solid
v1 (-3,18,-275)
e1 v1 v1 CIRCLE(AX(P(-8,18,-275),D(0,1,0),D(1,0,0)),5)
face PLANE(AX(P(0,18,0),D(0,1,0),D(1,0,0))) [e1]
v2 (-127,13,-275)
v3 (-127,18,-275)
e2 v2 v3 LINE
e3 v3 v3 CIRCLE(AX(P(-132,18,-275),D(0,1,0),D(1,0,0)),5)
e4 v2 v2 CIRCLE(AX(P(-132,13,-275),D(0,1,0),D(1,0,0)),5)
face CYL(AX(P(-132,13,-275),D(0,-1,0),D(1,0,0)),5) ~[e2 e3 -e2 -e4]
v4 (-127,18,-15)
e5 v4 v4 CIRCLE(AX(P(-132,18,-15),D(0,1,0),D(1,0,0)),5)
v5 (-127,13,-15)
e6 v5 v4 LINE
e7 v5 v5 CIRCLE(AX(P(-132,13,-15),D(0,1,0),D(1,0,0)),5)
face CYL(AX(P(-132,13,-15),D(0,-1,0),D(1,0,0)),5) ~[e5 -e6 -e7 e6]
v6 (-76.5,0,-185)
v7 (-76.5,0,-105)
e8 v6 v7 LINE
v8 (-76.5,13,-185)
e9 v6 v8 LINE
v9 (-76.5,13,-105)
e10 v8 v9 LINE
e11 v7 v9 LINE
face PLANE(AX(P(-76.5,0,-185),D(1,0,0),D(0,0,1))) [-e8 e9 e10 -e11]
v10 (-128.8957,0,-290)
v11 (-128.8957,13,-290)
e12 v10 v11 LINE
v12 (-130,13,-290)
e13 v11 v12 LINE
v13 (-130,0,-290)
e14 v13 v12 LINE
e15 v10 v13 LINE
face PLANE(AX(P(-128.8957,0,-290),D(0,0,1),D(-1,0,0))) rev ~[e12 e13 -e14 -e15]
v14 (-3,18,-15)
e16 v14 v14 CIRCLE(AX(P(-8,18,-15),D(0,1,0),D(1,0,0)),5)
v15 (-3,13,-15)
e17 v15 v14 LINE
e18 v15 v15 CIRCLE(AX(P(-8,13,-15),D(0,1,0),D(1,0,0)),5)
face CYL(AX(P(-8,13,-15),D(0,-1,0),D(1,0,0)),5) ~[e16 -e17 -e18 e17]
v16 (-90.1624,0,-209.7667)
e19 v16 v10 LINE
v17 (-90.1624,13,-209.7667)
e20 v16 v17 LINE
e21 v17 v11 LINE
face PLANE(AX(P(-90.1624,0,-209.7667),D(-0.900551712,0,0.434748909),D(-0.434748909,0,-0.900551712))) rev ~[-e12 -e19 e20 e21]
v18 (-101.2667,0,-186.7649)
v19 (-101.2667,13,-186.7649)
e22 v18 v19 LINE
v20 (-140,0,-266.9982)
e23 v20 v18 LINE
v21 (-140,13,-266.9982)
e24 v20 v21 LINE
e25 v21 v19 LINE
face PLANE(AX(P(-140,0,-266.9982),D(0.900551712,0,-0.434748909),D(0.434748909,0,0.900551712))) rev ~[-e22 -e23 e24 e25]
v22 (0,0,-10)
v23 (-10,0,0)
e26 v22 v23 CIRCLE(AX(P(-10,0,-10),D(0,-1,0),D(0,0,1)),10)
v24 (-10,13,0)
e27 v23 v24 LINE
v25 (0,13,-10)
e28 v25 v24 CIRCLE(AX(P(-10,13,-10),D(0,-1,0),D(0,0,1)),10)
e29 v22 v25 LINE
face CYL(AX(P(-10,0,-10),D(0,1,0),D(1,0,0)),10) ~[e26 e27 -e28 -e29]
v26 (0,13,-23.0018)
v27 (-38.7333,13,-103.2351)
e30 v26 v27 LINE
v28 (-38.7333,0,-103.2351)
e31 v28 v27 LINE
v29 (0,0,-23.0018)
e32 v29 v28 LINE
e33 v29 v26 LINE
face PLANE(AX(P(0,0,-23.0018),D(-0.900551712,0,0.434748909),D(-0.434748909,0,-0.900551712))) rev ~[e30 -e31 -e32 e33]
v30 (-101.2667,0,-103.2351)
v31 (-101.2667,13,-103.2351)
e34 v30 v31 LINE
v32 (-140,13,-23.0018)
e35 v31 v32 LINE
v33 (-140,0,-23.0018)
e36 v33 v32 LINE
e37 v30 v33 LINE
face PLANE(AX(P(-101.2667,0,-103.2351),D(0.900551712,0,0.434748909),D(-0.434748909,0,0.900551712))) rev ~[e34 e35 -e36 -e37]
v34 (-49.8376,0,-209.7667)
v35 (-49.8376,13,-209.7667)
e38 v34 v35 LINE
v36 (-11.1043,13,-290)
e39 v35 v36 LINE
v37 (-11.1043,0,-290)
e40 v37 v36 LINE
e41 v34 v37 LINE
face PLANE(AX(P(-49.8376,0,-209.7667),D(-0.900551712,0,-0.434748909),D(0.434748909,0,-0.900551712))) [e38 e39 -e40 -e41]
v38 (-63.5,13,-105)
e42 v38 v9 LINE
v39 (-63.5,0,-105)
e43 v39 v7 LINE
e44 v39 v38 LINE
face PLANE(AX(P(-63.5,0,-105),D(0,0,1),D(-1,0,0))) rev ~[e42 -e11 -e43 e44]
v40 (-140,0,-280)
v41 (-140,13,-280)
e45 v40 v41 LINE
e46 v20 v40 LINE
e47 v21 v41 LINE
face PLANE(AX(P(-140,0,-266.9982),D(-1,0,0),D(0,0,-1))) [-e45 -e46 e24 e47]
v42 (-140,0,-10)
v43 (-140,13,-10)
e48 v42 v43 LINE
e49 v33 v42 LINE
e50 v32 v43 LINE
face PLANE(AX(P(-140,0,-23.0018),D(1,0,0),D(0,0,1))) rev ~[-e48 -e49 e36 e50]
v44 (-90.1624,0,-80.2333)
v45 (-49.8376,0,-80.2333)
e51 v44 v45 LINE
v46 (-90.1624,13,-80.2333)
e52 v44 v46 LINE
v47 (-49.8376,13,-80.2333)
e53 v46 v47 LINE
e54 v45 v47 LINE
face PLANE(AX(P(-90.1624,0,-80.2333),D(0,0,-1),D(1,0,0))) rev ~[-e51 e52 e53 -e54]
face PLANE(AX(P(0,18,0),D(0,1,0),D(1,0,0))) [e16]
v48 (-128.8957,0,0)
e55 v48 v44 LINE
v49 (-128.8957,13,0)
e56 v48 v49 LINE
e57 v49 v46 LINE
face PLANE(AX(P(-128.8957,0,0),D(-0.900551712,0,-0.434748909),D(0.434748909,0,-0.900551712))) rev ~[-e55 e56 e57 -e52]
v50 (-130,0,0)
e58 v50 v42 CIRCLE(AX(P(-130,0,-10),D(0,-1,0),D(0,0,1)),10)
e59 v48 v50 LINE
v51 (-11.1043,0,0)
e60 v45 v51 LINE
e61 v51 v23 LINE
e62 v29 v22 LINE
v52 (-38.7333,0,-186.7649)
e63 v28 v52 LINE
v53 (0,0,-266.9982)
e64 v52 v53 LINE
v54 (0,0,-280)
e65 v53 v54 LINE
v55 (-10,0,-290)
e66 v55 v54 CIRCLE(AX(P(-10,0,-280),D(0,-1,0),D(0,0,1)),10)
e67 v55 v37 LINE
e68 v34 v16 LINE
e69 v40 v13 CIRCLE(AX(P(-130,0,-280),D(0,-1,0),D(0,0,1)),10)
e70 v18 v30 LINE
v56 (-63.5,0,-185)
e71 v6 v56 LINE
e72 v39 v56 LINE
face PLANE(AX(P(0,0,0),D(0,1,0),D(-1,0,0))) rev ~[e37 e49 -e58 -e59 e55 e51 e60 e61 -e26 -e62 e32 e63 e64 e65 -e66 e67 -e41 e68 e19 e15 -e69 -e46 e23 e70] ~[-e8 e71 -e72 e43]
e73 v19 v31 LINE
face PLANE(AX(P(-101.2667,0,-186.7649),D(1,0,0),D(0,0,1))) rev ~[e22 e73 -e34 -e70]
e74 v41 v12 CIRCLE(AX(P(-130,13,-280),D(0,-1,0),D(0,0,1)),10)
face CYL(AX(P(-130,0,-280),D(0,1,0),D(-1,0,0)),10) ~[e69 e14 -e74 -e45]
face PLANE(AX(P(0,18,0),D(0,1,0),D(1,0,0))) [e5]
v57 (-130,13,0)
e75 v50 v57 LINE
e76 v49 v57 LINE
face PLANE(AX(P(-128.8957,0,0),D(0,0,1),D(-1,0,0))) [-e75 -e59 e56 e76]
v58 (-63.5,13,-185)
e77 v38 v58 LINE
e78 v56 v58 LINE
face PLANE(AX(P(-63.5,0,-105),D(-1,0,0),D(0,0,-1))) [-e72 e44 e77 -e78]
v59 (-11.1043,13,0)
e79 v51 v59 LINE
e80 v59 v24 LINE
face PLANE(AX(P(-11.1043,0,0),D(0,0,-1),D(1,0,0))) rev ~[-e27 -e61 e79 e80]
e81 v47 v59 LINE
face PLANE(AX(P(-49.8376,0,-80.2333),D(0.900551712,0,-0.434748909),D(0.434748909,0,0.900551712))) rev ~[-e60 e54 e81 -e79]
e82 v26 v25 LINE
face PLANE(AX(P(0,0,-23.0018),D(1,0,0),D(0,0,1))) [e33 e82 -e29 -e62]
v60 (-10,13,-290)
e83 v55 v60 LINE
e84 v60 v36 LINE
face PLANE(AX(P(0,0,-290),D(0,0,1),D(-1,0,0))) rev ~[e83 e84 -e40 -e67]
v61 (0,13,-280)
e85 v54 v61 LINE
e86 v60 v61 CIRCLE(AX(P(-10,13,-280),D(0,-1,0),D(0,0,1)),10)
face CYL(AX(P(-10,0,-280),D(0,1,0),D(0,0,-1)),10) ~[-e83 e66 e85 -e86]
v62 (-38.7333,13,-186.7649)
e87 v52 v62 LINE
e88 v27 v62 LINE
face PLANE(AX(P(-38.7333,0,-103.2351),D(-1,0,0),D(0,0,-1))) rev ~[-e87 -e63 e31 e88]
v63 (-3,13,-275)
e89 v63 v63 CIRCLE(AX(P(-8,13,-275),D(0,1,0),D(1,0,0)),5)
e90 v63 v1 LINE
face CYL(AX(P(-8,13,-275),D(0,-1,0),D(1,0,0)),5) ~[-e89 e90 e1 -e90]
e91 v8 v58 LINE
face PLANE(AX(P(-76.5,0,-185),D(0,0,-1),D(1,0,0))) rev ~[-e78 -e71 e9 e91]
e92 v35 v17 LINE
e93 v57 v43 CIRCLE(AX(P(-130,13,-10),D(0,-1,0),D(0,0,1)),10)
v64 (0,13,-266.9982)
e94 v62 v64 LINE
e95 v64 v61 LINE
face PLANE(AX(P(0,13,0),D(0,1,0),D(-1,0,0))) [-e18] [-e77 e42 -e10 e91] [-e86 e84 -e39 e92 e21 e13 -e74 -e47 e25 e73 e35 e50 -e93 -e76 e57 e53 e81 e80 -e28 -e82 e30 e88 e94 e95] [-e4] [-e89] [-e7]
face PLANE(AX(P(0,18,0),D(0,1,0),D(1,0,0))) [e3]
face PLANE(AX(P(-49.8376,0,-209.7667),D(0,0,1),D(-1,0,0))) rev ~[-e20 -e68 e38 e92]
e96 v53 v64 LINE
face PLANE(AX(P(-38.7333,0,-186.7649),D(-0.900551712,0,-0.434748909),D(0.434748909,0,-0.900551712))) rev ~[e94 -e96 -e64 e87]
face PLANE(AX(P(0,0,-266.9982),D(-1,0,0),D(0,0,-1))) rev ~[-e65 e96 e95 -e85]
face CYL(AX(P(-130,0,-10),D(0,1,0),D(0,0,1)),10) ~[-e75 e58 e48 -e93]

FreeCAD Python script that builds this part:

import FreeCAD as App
import Part
import Sketcher
from FreeCAD import Vector
Q = App.Units.Quantity


def edges_at(feature, points):
    """Names of the edges that pass closest to the given points."""
    edges = feature.Shape.Edges
    near = lambda p: min(range(len(edges)), key=lambda i: edges[i].distToShape(Part.Vertex(*p))[0])
    return sorted({f"Edge{near(p) + 1}" for p in points})


def add_polygon(sketch, points):
    """Adds a closed chain of lines whose ends are joined by coincident constraints."""
    first, n = sketch.GeometryCount, len(points)
    for a, b in zip(points, points[1:] + points[:1]):
        sketch.addGeometry(Part.LineSegment(App.Vector(*a, 0), App.Vector(*b, 0)), False)
    for i in range(n):
        sketch.addConstraint(Sketcher.Constraint("Coincident", first + i, 2, first + (i + 1) % n, 1))

doc = App.newDocument("Part")
params = doc.addObject("Spreadsheet::Sheet", "Params")
for row, (alias, value) in enumerate([
    ("sketch1_width", "13 mm"),
    ("sketch1_height", "80 mm"),
    ("pad1_length", "13 mm"),
    ("fillet_radius", "10 mm"),
    ("sketch2_diameter", "10 mm"),
    ("pad2_length", "5 mm"),
], start=1):
    params.set(f"A{row}", alias)
    params.set(f"B{row}", "=" + value)
    params.setAlias(f"B{row}", alias)

body = doc.addObject("PartDesign::Body", "Body")

# Sketch on XZ plane
sketch1 = doc.addObject("Sketcher::SketchObject", "Sketch")
body.addObject(sketch1)
sketch1.AttachmentSupport = (doc.XZ_Plane, [""])
sketch1.MapMode = "FlatFace"
add_polygon(sketch1, [(0, 0), (0, -23), (-39, -103), (-39, -187), (0, -267), (0, -290), (-11, -290), (-50, -210), (-90, -210), (-129, -290), (-140, -290), (-140, -267), (-101, -187), (-101, -103), (-140, -23), (-140, 0), (-129, 0), (-90, -80), (-50, -80), (-11, 0)])  # lines 0-19
add_polygon(sketch1, [(-64, -185), (-64, -105), (-76, -105), (-76, -185)])  # lines 20-23
sketch1.addConstraint([
    Sketcher.Constraint("Vertical", 0),
    Sketcher.Constraint("Vertical", 2),
    Sketcher.Constraint("Vertical", 4),
    Sketcher.Constraint("Horizontal", 5),
    Sketcher.Constraint("Horizontal", 7),
    Sketcher.Constraint("Horizontal", 9),
    Sketcher.Constraint("Vertical", 10),
    Sketcher.Constraint("Vertical", 12),
    Sketcher.Constraint("Vertical", 14),
    Sketcher.Constraint("Horizontal", 15),
    Sketcher.Constraint("Horizontal", 17),
    Sketcher.Constraint("Horizontal", 19),
    Sketcher.Constraint("Vertical", 20),
    Sketcher.Constraint("Horizontal", 21),
    Sketcher.Constraint("Vertical", 22),
    Sketcher.Constraint("Horizontal", 23),
    Sketcher.Constraint("Coincident", 19, 2, -1, 1),
    Sketcher.Constraint("PointOnObject", 3, 2, -2),
    Sketcher.Constraint("PointOnObject", 14, 2, -1),
    Sketcher.Constraint("Parallel", 3, 6),
    Sketcher.Constraint("Parallel", 1, 8),
    Sketcher.Constraint("Parallel", 8, 11),
    Sketcher.Constraint("Parallel", 6, 13),
    Sketcher.Constraint("Parallel", 13, 16),
    Sketcher.Constraint("Parallel", 11, 18),
    Sketcher.Constraint("Horizontal", 5, 2, 8, 2),
    Sketcher.Constraint("Horizontal", 3, 2, 10, 2),
    Sketcher.Constraint("Horizontal", 2, 2, 11, 2),
    Sketcher.Constraint("Horizontal", 1, 2, 12, 2),
    Sketcher.Constraint("Horizontal", 0, 2, 13, 2),
    Sketcher.Constraint("Vertical", 10, 2, 13, 2),
    Sketcher.Constraint("Vertical", 8, 2, 15, 2),
    Sketcher.Constraint("Vertical", 7, 2, 16, 2),
    Sketcher.Constraint("Vertical", 6, 2, 17, 2),
    Sketcher.Constraint("Equal", 5, 9),
    Sketcher.Constraint("Equal", 0, 4),
    Sketcher.Constraint("Equal", 3, 6),
    Sketcher.Constraint("DistanceX", 21, 2, 21, 1, Q("13 mm")),
    Sketcher.Constraint("DistanceY", 20, 1, 20, 2, Q("80 mm")),
    Sketcher.Constraint("DistanceY", 4, 2, -1, 1, Q("290 mm")),
    Sketcher.Constraint("DistanceX", 9, 2, -1, 1, Q("140 mm")),
    Sketcher.Constraint("DistanceY", 20, 2, -1, 1, Q("105 mm")),
    Sketcher.Constraint("DistanceX", 20, 2, -1, 1, Q("63.5 mm")),
    Sketcher.Constraint("Angle", 1, Q("-115.7693 deg")),
    Sketcher.Constraint("DistanceX", 5, 2, 5, 1, Q("11.1043 mm")),
    Sketcher.Constraint("DistanceX", 7, 2, 7, 1, Q("40.3248 mm")),
    Sketcher.Constraint("DistanceY", 0, 2, 0, 1, Q("23.0018 mm")),
])
sketch1.setExpression("Constraints[61]", "Params.sketch1_width")
sketch1.setExpression("Constraints[62]", "Params.sketch1_height")
pad1 = doc.addObject("PartDesign::Pad", "Pad")
body.addObject(pad1)
pad1.Profile = sketch1
pad1.setExpression("Length", "Params.pad1_length")
pad1.Reversed = True
doc.recompute()

fillet = doc.addObject("PartDesign::Fillet", "Fillet")
body.addObject(fillet)
fillet.Base = (pad1, edges_at(pad1, [
    (-140, 6.5, -290),
    (0, 6.5, -290),
    (0, 6.5, 0),
    (-140, 6.5, 0),
]))
fillet.setExpression("Radius", "Params.fillet_radius")

# Sketch on XZ plane
sketch2 = doc.addObject("Sketcher::SketchObject", "Sketch001")
body.addObject(sketch2)
sketch2.AttachmentSupport = (doc.XZ_Plane, [""])
sketch2.MapMode = "FlatFace"
sketch2.AttachmentOffset = App.Placement(Vector(0, 0, -13), App.Rotation())
sketch2.addGeometry([
    Part.Circle(Vector(-8, -275, 0), Vector(0, 0, 1), 5),
    Part.Circle(Vector(-132, -275, 0), Vector(0, 0, 1), 5),
    Part.Circle(Vector(-8, -15, 0), Vector(0, 0, 1), 5),
    Part.Circle(Vector(-132, -15, 0), Vector(0, 0, 1), 5),
], False)
sketch2.addConstraint([
    Sketcher.Constraint("Equal", 0, 1),
    Sketcher.Constraint("Equal", 1, 2),
    Sketcher.Constraint("Equal", 2, 3),
    Sketcher.Constraint("Horizontal", 0, 3, 1, 3),
    Sketcher.Constraint("Horizontal", 2, 3, 3, 3),
    Sketcher.Constraint("Vertical", 0, 3, 2, 3),
    Sketcher.Constraint("Vertical", 1, 3, 3, 3),
    Sketcher.Constraint("Diameter", 0, Q("10 mm")),
    Sketcher.Constraint("DistanceX", 0, 3, -1, 1, Q("8 mm")),
    Sketcher.Constraint("DistanceY", 2, 3, -1, 1, Q("15 mm")),
    Sketcher.Constraint("DistanceY", 0, 3, -1, 1, Q("275 mm")),
    Sketcher.Constraint("DistanceX", 1, 3, -1, 1, Q("132 mm")),
])
sketch2.setExpression("Constraints[7]", "Params.sketch2_diameter")
pad2 = doc.addObject("PartDesign::Pad", "Pad001")
body.addObject(pad2)
pad2.Profile = sketch2
pad2.setExpression("Length", "Params.pad2_length")
pad2.Reversed = True

doc.recompute()
